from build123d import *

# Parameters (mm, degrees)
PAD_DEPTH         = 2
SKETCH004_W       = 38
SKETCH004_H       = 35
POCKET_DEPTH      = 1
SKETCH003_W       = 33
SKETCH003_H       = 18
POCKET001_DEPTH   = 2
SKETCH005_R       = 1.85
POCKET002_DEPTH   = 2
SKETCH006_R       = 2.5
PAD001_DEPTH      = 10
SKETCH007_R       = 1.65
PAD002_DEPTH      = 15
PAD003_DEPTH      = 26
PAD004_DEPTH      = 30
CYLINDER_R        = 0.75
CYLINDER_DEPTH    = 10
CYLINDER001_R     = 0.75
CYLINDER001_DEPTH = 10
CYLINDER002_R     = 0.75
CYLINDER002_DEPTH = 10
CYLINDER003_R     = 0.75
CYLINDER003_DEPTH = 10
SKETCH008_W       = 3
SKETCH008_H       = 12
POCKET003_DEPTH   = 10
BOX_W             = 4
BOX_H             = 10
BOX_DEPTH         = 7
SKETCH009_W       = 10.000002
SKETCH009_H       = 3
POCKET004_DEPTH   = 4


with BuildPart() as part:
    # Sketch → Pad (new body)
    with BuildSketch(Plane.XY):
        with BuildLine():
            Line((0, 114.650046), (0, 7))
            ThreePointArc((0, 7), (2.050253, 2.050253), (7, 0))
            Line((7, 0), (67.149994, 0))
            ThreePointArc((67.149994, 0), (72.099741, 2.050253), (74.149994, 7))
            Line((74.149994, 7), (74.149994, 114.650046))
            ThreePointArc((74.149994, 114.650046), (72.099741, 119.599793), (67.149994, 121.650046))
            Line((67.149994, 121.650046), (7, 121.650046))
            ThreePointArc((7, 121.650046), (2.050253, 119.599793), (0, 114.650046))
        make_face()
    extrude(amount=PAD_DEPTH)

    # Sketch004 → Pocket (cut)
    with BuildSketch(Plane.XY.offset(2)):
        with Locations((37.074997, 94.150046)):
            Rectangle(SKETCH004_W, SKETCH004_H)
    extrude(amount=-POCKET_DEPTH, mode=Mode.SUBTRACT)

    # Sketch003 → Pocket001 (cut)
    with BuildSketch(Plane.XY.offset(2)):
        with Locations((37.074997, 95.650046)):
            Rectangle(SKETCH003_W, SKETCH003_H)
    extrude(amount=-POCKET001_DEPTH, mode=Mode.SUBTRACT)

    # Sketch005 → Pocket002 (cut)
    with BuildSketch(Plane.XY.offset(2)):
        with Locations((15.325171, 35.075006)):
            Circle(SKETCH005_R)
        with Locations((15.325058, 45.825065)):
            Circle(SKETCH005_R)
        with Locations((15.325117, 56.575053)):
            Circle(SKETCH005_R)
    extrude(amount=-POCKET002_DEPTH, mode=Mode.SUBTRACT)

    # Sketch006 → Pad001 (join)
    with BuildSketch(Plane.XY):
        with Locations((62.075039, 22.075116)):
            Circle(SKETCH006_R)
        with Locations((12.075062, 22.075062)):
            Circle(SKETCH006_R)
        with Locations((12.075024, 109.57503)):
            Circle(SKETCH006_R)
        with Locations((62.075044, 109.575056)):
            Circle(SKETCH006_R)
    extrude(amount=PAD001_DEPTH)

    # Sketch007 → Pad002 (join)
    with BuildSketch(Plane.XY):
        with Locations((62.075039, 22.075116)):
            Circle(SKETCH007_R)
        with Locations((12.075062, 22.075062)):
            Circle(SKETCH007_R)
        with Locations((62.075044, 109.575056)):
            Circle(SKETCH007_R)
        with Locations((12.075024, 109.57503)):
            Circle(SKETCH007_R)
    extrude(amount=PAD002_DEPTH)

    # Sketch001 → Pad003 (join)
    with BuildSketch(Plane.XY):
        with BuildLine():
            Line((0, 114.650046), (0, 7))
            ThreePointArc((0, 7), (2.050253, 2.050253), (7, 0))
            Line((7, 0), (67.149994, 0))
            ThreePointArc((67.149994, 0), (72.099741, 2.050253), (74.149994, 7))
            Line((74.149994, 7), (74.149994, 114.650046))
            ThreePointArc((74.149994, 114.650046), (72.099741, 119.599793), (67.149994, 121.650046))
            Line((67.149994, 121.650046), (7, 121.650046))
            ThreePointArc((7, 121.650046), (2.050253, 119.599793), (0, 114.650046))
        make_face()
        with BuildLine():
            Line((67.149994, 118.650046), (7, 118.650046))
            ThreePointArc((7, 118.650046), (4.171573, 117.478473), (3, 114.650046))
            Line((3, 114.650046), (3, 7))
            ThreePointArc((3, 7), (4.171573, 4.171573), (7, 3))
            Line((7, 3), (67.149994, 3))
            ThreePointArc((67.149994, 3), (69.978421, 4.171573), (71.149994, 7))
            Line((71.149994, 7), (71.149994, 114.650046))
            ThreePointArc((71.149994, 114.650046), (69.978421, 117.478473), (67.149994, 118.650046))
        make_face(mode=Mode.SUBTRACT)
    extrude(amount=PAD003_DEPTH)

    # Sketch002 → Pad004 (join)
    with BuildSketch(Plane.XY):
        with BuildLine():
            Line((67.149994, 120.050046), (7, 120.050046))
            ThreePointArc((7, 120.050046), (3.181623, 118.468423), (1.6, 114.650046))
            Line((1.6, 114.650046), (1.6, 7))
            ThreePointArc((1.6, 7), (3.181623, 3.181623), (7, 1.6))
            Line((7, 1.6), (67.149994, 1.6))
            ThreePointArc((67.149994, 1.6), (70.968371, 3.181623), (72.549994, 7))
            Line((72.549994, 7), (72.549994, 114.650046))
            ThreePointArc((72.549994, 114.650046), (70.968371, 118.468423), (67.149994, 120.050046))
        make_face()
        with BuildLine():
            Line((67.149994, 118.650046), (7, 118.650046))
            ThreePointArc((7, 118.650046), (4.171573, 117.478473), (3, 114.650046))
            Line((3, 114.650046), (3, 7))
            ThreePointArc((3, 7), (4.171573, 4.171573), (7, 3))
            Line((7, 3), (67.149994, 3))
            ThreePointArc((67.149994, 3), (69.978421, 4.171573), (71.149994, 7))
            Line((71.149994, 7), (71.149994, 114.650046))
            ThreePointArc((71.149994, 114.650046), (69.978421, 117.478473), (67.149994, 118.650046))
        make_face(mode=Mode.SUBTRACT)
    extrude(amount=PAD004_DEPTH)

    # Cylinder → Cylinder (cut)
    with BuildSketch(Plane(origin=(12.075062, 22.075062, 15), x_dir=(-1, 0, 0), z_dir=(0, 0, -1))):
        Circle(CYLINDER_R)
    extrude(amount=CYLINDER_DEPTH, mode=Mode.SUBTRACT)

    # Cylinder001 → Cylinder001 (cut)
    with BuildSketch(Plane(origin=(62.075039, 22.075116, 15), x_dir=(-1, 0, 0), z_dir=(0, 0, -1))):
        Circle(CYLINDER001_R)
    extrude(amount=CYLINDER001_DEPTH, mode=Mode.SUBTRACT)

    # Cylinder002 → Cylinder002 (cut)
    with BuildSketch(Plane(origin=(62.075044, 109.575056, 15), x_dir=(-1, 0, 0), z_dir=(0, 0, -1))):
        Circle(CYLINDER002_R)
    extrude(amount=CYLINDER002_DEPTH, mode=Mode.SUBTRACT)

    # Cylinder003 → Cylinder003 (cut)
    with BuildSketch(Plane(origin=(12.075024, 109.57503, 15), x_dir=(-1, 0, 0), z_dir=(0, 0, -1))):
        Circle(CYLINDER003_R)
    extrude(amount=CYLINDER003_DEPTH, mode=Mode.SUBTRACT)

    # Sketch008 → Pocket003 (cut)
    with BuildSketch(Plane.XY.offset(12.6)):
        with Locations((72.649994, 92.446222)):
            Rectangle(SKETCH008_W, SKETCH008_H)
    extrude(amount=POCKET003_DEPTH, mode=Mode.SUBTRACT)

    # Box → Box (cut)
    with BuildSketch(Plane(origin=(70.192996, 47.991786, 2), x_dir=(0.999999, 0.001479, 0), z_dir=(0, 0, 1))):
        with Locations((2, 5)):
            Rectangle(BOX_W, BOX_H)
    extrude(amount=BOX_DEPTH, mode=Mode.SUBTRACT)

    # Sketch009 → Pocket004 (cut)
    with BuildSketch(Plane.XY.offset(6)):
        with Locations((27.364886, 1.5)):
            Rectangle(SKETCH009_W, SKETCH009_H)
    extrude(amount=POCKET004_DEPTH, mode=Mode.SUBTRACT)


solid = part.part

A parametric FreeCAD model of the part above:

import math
import FreeCAD as App
import Part
import Sketcher
from FreeCAD import Vector
Q = App.Units.Quantity

doc = App.newDocument("Part")
body = doc.addObject("PartDesign::Body", "Body")

sketch1 = body.newObject("Sketcher::SketchObject", "Sketch")
sketch1.AttachmentSupport = (doc.getObject("XY_Plane"), [""])
sketch1.MapMode = "FlatFace"
sketch1.addGeometry([
    Part.LineSegment(Vector(0, 115, 0), Vector(0, 7, 0)),
    Part.ArcOfCircle(Part.Circle(Vector(7, 7, 0), Vector(0, 0, 1), 7), math.radians(-180), math.radians(-90)),
    Part.LineSegment(Vector(7, 0, 0), Vector(67, 0, 0)),
    Part.ArcOfCircle(Part.Circle(Vector(67, 7, 0), Vector(0, 0, 1), 7), math.radians(-90), math.radians(0)),
    Part.LineSegment(Vector(74, 7, 0), Vector(74, 115, 0)),
    Part.ArcOfCircle(Part.Circle(Vector(67, 115, 0), Vector(0, 0, 1), 7), math.radians(0), math.radians(90)),
    Part.LineSegment(Vector(67, 122, 0), Vector(7, 122, 0)),
    Part.ArcOfCircle(Part.Circle(Vector(7, 115, 0), Vector(0, 0, 1), 7), math.radians(90), math.radians(180)),
], False)
sketch1.addConstraint([
    Sketcher.Constraint("Tangent", 0, 2, 1, 1),
    Sketcher.Constraint("Tangent", 1, 2, 2, 1),
    Sketcher.Constraint("Tangent", 2, 2, 3, 1),
    Sketcher.Constraint("Tangent", 3, 2, 4, 1),
    Sketcher.Constraint("Tangent", 4, 2, 5, 1),
    Sketcher.Constraint("Tangent", 5, 2, 6, 1),
    Sketcher.Constraint("Tangent", 6, 2, 7, 1),
    Sketcher.Constraint("Tangent", 7, 2, 0, 1),
    Sketcher.Constraint("Vertical", 0),
    Sketcher.Constraint("Horizontal", 2),
    Sketcher.Constraint("Vertical", 4),
    Sketcher.Constraint("Horizontal", 6),
    Sketcher.Constraint("Equal", 1, 3),
    Sketcher.Constraint("Equal", 3, 5),
    Sketcher.Constraint("Equal", 5, 7),
    Sketcher.Constraint("PointOnObject", 0, 2, -2),
    Sketcher.Constraint("PointOnObject", 1, 2, -1),
    Sketcher.Constraint("Radius", 1, Q("7.000002 mm")),
    Sketcher.Constraint("DistanceX", 2, 1, 2, 2, Q("60.149994 mm")),
    Sketcher.Constraint("DistanceY", 0, 2, 0, 1, Q("107.650046 mm")),
])
pad1 = body.newObject("PartDesign::Pad", "Pad")
pad1.Profile = sketch1
pad1.Length = 2

sketch2 = body.newObject("Sketcher::SketchObject", "Sketch001")
sketch2.AttachmentSupport = (doc.getObject("XY_Plane"), [""])
sketch2.MapMode = "FlatFace"
sketch2.AttachmentOffset = App.Placement(Vector(0, 0, 2), App.Rotation())
sketch2.addGeometry([
    Part.LineSegment(Vector(18, 112, 0), Vector(18, 77, 0)),
    Part.LineSegment(Vector(18, 77, 0), Vector(56, 77, 0)),
    Part.LineSegment(Vector(56, 77, 0), Vector(56, 112, 0)),
    Part.LineSegment(Vector(56, 112, 0), Vector(18, 112, 0)),
], False)
sketch2.addConstraint([
    Sketcher.Constraint("Coincident", 0, 2, 1, 1),
    Sketcher.Constraint("Coincident", 1, 2, 2, 1),
    Sketcher.Constraint("Coincident", 2, 2, 3, 1),
    Sketcher.Constraint("Coincident", 3, 2, 0, 1),
    Sketcher.Constraint("Vertical", 0),
    Sketcher.Constraint("Horizontal", 1),
    Sketcher.Constraint("Vertical", 2),
    Sketcher.Constraint("Horizontal", 3),
    Sketcher.Constraint("DistanceX", 1, 1, 1, 2, Q("38 mm")),
    Sketcher.Constraint("DistanceY", 0, 2, 0, 1, Q("35 mm")),
    Sketcher.Constraint("DistanceX", -1, 1, 0, 2, Q("18.074997 mm")),
    Sketcher.Constraint("DistanceY", -1, 1, 0, 2, Q("76.650046 mm")),
])
pocket1 = body.newObject("PartDesign::Pocket", "Pocket")
pocket1.Profile = sketch2
pocket1.Length = 1

sketch3 = body.newObject("Sketcher::SketchObject", "Sketch002")
sketch3.AttachmentSupport = (doc.getObject("XY_Plane"), [""])
sketch3.MapMode = "FlatFace"
sketch3.AttachmentOffset = App.Placement(Vector(0, 0, 2), App.Rotation())
sketch3.addGeometry([
    Part.LineSegment(Vector(21, 105, 0), Vector(21, 87, 0)),
    Part.LineSegment(Vector(21, 87, 0), Vector(54, 87, 0)),
    Part.LineSegment(Vector(54, 87, 0), Vector(54, 105, 0)),
    Part.LineSegment(Vector(54, 105, 0), Vector(21, 105, 0)),
], False)
sketch3.addConstraint([
    Sketcher.Constraint("Coincident", 0, 2, 1, 1),
    Sketcher.Constraint("Coincident", 1, 2, 2, 1),
    Sketcher.Constraint("Coincident", 2, 2, 3, 1),
    Sketcher.Constraint("Coincident", 3, 2, 0, 1),
    Sketcher.Constraint("Vertical", 0),
    Sketcher.Constraint("Horizontal", 1),
    Sketcher.Constraint("Vertical", 2),
    Sketcher.Constraint("Horizontal", 3),
    Sketcher.Constraint("DistanceX", 1, 1, 1, 2, Q("33 mm")),
    Sketcher.Constraint("DistanceY", 0, 2, 0, 1, Q("18 mm")),
    Sketcher.Constraint("DistanceX", -1, 1, 0, 2, Q("20.574997 mm")),
    Sketcher.Constraint("DistanceY", -1, 1, 0, 2, Q("86.650046 mm")),
])
pocket2 = body.newObject("PartDesign::Pocket", "Pocket001")
pocket2.Profile = sketch3
pocket2.Length = 2

sketch4 = body.newObject("Sketcher::SketchObject", "Sketch003")
sketch4.AttachmentSupport = (doc.getObject("XY_Plane"), [""])
sketch4.MapMode = "FlatFace"
sketch4.AttachmentOffset = App.Placement(Vector(0, 0, 2), App.Rotation())
sketch4.addGeometry([
    Part.Circle(Vector(15.3, 35.1, 0), Vector(0, 0, 1), 1.9),
    Part.Circle(Vector(15.3, 45.8, 0), Vector(0, 0, 1), 1.9),
    Part.Circle(Vector(15.3, 56.6, 0), Vector(0, 0, 1), 1.9),
], False)
sketch4.addConstraint([
    Sketcher.Constraint("Equal", 0, 1),
    Sketcher.Constraint("Equal", 1, 2),
    Sketcher.Constraint("Diameter", 0, Q("3.7 mm")),
    Sketcher.Constraint("DistanceX", -1, 1, 0, 3, Q("15.325171 mm")),
    Sketcher.Constraint("DistanceY", 0, 3, 1, 3, Q("10.750059 mm")),
    Sketcher.Constraint("DistanceY", -1, 1, 0, 3, Q("35.075006 mm")),
    Sketcher.Constraint("DistanceX", -1, 1, 1, 3, Q("15.325058 mm")),
    Sketcher.Constraint("DistanceX", -1, 1, 2, 3, Q("15.325117 mm")),
    Sketcher.Constraint("DistanceY", -1, 1, 2, 3, Q("56.575053 mm")),
])
pocket3 = body.newObject("PartDesign::Pocket", "Pocket002")
pocket3.Profile = sketch4
pocket3.Length = 2

sketch5 = body.newObject("Sketcher::SketchObject", "Sketch004")
sketch5.AttachmentSupport = (doc.getObject("XY_Plane"), [""])
sketch5.MapMode = "FlatFace"
sketch5.addGeometry([
    Part.Circle(Vector(62.1, 22.1, 0), Vector(0, 0, 1), 2.5),
    Part.Circle(Vector(12.1, 22.1, 0), Vector(0, 0, 1), 2.5),
    Part.Circle(Vector(12.1, 109.6, 0), Vector(0, 0, 1), 2.5),
    Part.Circle(Vector(62.1, 109.6, 0), Vector(0, 0, 1), 2.5),
], False)
sketch5.addConstraint([
    Sketcher.Constraint("Equal", 0, 1),
    Sketcher.Constraint("Equal", 1, 2),
    Sketcher.Constraint("Equal", 2, 3),
    Sketcher.Constraint("Diameter", 0, Q("5 mm")),
    Sketcher.Constraint("DistanceX", -1, 1, 0, 3, Q("62.075039 mm")),
    Sketcher.Constraint("DistanceY", -1, 1, 1, 3, Q("22.075062 mm")),
    Sketcher.Constraint("DistanceY", -1, 1, 2, 3, Q("109.57503 mm")),
    Sketcher.Constraint("DistanceX", 2, 3, 3, 3, Q("50.00002 mm")),
    Sketcher.Constraint("DistanceY", 0, 3, 3, 3, Q("87.49994 mm")),
    Sketcher.Constraint("DistanceX", 1, 3, 3, 3, Q("49.999982 mm")),
    Sketcher.Constraint("DistanceY", -1, 1, 0, 3, Q("22.075116 mm")),
    Sketcher.Constraint("DistanceX", -1, 1, 1, 3, Q("12.075062 mm")),
])
pad2 = body.newObject("PartDesign::Pad", "Pad001")
pad2.Profile = sketch5
pad2.Length = 10

sketch6 = body.newObject("Sketcher::SketchObject", "Sketch005")
sketch6.AttachmentSupport = (doc.getObject("XY_Plane"), [""])
sketch6.MapMode = "FlatFace"
sketch6.addGeometry([
    Part.Circle(Vector(62.1, 22.1, 0), Vector(0, 0, 1), 1.6),
    Part.Circle(Vector(12.1, 22.1, 0), Vector(0, 0, 1), 1.6),
    Part.Circle(Vector(62.1, 109.6, 0), Vector(0, 0, 1), 1.6),
    Part.Circle(Vector(12.1, 109.6, 0), Vector(0, 0, 1), 1.6),
], False)
sketch6.addConstraint([
    Sketcher.Constraint("Equal", 0, 1),
    Sketcher.Constraint("Equal", 1, 2),
    Sketcher.Constraint("Equal", 2, 3),
    Sketcher.Constraint("Diameter", 0, Q("3.3 mm")),
    Sketcher.Constraint("DistanceX", -1, 1, 0, 3, Q("62.075039 mm")),
    Sketcher.Constraint("DistanceY", -1, 1, 1, 3, Q("22.075062 mm")),
    Sketcher.Constraint("DistanceY", -1, 1, 3, 3, Q("109.57503 mm")),
    Sketcher.Constraint("DistanceY", 0, 3, 2, 3, Q("87.49994 mm")),
    Sketcher.Constraint("DistanceX", 1, 3, 2, 3, Q("49.999982 mm")),
    Sketcher.Constraint("DistanceX", 3, 3, 2, 3, Q("50.00002 mm")),
    Sketcher.Constraint("DistanceY", -1, 1, 0, 3, Q("22.075116 mm")),
    Sketcher.Constraint("DistanceX", -1, 1, 1, 3, Q("12.075062 mm")),
])
pad3 = body.newObject("PartDesign::Pad", "Pad002")
pad3.Profile = sketch6
pad3.Length = 15

sketch7 = body.newObject("Sketcher::SketchObject", "Sketch006")
sketch7.AttachmentSupport = (doc.getObject("XY_Plane"), [""])
sketch7.MapMode = "FlatFace"
sketch7.addGeometry([
    Part.LineSegment(Vector(0, 114.7, 0), Vector(0, 7, 0)),
    Part.ArcOfCircle(Part.Circle(Vector(7, 7, 0), Vector(0, 0, 1), 7), math.radians(-180), math.radians(-90)),
    Part.LineSegment(Vector(7, 0, 0), Vector(67.1, 0, 0)),
    Part.ArcOfCircle(Part.Circle(Vector(67.1, 7, 0), Vector(0, 0, 1), 7), math.radians(-90), math.radians(0)),
    Part.LineSegment(Vector(74.1, 7, 0), Vector(74.1, 114.7, 0)),
    Part.ArcOfCircle(Part.Circle(Vector(67.1, 114.7, 0), Vector(0, 0, 1), 7), math.radians(0), math.radians(90)),
    Part.LineSegment(Vector(67.1, 121.7, 0), Vector(7, 121.7, 0)),
    Part.ArcOfCircle(Part.Circle(Vector(7, 114.7, 0), Vector(0, 0, 1), 7), math.radians(90), math.radians(180)),
    Part.LineSegment(Vector(7, 118.7, 0), Vector(67.1, 118.7, 0)),
    Part.ArcOfCircle(Part.Circle(Vector(67.1, 114.7, 0), Vector(0, 0, 1), 4), math.radians(0), math.radians(90)),
    Part.LineSegment(Vector(71.1, 114.7, 0), Vector(71.1, 7, 0)),
    Part.ArcOfCircle(Part.Circle(Vector(67.1, 7, 0), Vector(0, 0, 1), 4), math.radians(-90), math.radians(0)),
    Part.LineSegment(Vector(67.1, 3, 0), Vector(7, 3, 0)),
    Part.ArcOfCircle(Part.Circle(Vector(7, 7, 0), Vector(0, 0, 1), 4), math.radians(-180), math.radians(-90)),
    Part.LineSegment(Vector(3, 7, 0), Vector(3, 114.7, 0)),
    Part.ArcOfCircle(Part.Circle(Vector(7, 114.7, 0), Vector(0, 0, 1), 4), math.radians(90), math.radians(180)),
], False)
sketch7.addConstraint([
    Sketcher.Constraint("Tangent", 0, 2, 1, 1),
    Sketcher.Constraint("Tangent", 1, 2, 2, 1),
    Sketcher.Constraint("Tangent", 2, 2, 3, 1),
    Sketcher.Constraint("Tangent", 3, 2, 4, 1),
    Sketcher.Constraint("Tangent", 4, 2, 5, 1),
    Sketcher.Constraint("Tangent", 5, 2, 6, 1),
    Sketcher.Constraint("Tangent", 6, 2, 7, 1),
    Sketcher.Constraint("Tangent", 7, 2, 0, 1),
    Sketcher.Constraint("Tangent", 8, 2, 9, 2),
    Sketcher.Constraint("Tangent", 9, 1, 10, 1),
    Sketcher.Constraint("Tangent", 10, 2, 11, 2),
    Sketcher.Constraint("Tangent", 11, 1, 12, 1),
    Sketcher.Constraint("Tangent", 12, 2, 13, 2),
    Sketcher.Constraint("Tangent", 13, 1, 14, 1),
    Sketcher.Constraint("Tangent", 14, 2, 15, 2),
    Sketcher.Constraint("Tangent", 15, 1, 8, 1),
    Sketcher.Constraint("Vertical", 0),
    Sketcher.Constraint("Horizontal", 2),
    Sketcher.Constraint("Vertical", 4),
    Sketcher.Constraint("Horizontal", 6),
    Sketcher.Constraint("Horizontal", 8),
    Sketcher.Constraint("Vertical", 10),
    Sketcher.Constraint("Horizontal", 12),
    Sketcher.Constraint("Vertical", 14),
    Sketcher.Constraint("Coincident", 9, 3, 5, 3),
    Sketcher.Constraint("Coincident", 11, 3, 3, 3),
    Sketcher.Constraint("Coincident", 13, 3, 1, 3),
    Sketcher.Constraint("Equal", 1, 3),
    Sketcher.Constraint("Equal", 3, 5),
    Sketcher.Constraint("Equal", 5, 7),
    Sketcher.Constraint("Equal", 13, 15),
    Sketcher.Constraint("PointOnObject", 0, 2, -2),
    Sketcher.Constraint("PointOnObject", 1, 2, -1),
    Sketcher.Constraint("Radius", 1, Q("7.000002 mm")),
    Sketcher.Constraint("Radius", 9, Q("4 mm")),
    Sketcher.Constraint("DistanceX", 2, 1, 2, 2, Q("60.149994 mm")),
    Sketcher.Constraint("DistanceY", 0, 2, 0, 1, Q("107.650046 mm")),
])
pad4 = body.newObject("PartDesign::Pad", "Pad003")
pad4.Profile = sketch7
pad4.Length = 26

sketch8 = body.newObject("Sketcher::SketchObject", "Sketch007")
sketch8.AttachmentSupport = (doc.getObject("XY_Plane"), [""])
sketch8.MapMode = "FlatFace"
sketch8.addGeometry([
    Part.LineSegment(Vector(67.1, 120.1, 0), Vector(7, 120.1, 0)),
    Part.ArcOfCircle(Part.Circle(Vector(7, 114.7, 0), Vector(0, 0, 1), 5.4), math.radians(90), math.radians(180)),
    Part.LineSegment(Vector(1.6, 114.7, 0), Vector(1.6, 7, 0)),
    Part.ArcOfCircle(Part.Circle(Vector(7, 7, 0), Vector(0, 0, 1), 5.4), math.radians(180), math.radians(270)),
    Part.LineSegment(Vector(7, 1.6, 0), Vector(67.1, 1.6, 0)),
    Part.ArcOfCircle(Part.Circle(Vector(67.1, 7, 0), Vector(0, 0, 1), 5.4), math.radians(-90), math.radians(0)),
    Part.LineSegment(Vector(72.5, 7, 0), Vector(72.5, 114.7, 0)),
    Part.ArcOfCircle(Part.Circle(Vector(67.1, 114.7, 0), Vector(0, 0, 1), 5.4), math.radians(0), math.radians(90)),
    Part.LineSegment(Vector(7, 118.7, 0), Vector(67.1, 118.7, 0)),
    Part.ArcOfCircle(Part.Circle(Vector(67.1, 114.7, 0), Vector(0, 0, 1), 4), math.radians(0), math.radians(90)),
    Part.LineSegment(Vector(71.1, 114.7, 0), Vector(71.1, 7, 0)),
    Part.ArcOfCircle(Part.Circle(Vector(67.1, 7, 0), Vector(0, 0, 1), 4), math.radians(-90), math.radians(0)),
    Part.LineSegment(Vector(67.1, 3, 0), Vector(7, 3, 0)),
    Part.ArcOfCircle(Part.Circle(Vector(7, 7, 0), Vector(0, 0, 1), 4), math.radians(-180), math.radians(-90)),
    Part.LineSegment(Vector(3, 7, 0), Vector(3, 114.7, 0)),
    Part.ArcOfCircle(Part.Circle(Vector(7, 114.7, 0), Vector(0, 0, 1), 4), math.radians(90), math.radians(180)),
], False)
sketch8.addConstraint([
    Sketcher.Constraint("Tangent", 0, 2, 1, 1),
    Sketcher.Constraint("Tangent", 1, 2, 2, 1),
    Sketcher.Constraint("Tangent", 2, 2, 3, 1),
    Sketcher.Constraint("Tangent", 3, 2, 4, 1),
    Sketcher.Constraint("Tangent", 4, 2, 5, 1),
    Sketcher.Constraint("Tangent", 5, 2, 6, 1),
    Sketcher.Constraint("Tangent", 6, 2, 7, 1),
    Sketcher.Constraint("Tangent", 7, 2, 0, 1),
    Sketcher.Constraint("Tangent", 8, 2, 9, 2),
    Sketcher.Constraint("Tangent", 9, 1, 10, 1),
    Sketcher.Constraint("Tangent", 10, 2, 11, 2),
    Sketcher.Constraint("Tangent", 11, 1, 12, 1),
    Sketcher.Constraint("Tangent", 12, 2, 13, 2),
    Sketcher.Constraint("Tangent", 13, 1, 14, 1),
    Sketcher.Constraint("Tangent", 14, 2, 15, 2),
    Sketcher.Constraint("Tangent", 15, 1, 8, 1),
    Sketcher.Constraint("Horizontal", 0),
    Sketcher.Constraint("Vertical", 2),
    Sketcher.Constraint("Horizontal", 4),
    Sketcher.Constraint("Vertical", 6),
    Sketcher.Constraint("Horizontal", 8),
    Sketcher.Constraint("Vertical", 10),
    Sketcher.Constraint("Horizontal", 12),
    Sketcher.Constraint("Vertical", 14),
    Sketcher.Constraint("Coincident", 9, 3, 7, 3),
    Sketcher.Constraint("Coincident", 11, 3, 5, 3),
    Sketcher.Constraint("Coincident", 13, 3, 3, 3),
    Sketcher.Constraint("Equal", 1, 3),
    Sketcher.Constraint("Equal", 3, 5),
    Sketcher.Constraint("Equal", 5, 7),
    Sketcher.Constraint("Equal", 13, 15),
    Sketcher.Constraint("Radius", 9, Q("4 mm")),
    Sketcher.Constraint("Radius", 1, Q("5.399999 mm")),
    Sketcher.Constraint("DistanceX", -1, 1, 1, 3, Q("6.999999 mm")),
    Sketcher.Constraint("DistanceY", -1, 1, 3, 3, Q("6.999999 mm")),
    Sketcher.Constraint("DistanceX", 0, 2, 0, 1, Q("60.149994 mm")),
    Sketcher.Constraint("DistanceY", 2, 2, 2, 1, Q("107.650046 mm")),
])
pad5 = body.newObject("PartDesign::Pad", "Pad004")
pad5.Profile = sketch8
pad5.Length = 30

sketch9 = body.newObject("Sketcher::SketchObject", "Sketch008")
sketch9.AttachmentSupport = (doc.getObject("XY_Plane"), [""])
sketch9.MapMode = "FlatFace"
sketch9.AttachmentOffset = App.Placement(Vector(0, 0, 15), App.Rotation())
sketch9.addGeometry(Part.Circle(Vector(12.1, 22.1, 0), Vector(0, 0, 1), 0.8), False)
sketch9.addConstraint([
    Sketcher.Constraint("Diameter", 0, Q("1.5 mm")),
    Sketcher.Constraint("DistanceY", -1, 1, 0, 3, Q("22.075062 mm")),
    Sketcher.Constraint("DistanceX", -1, 1, 0, 3, Q("12.075062 mm")),
])
pocket4 = body.newObject("PartDesign::Pocket", "Pocket003")
pocket4.Profile = sketch9
pocket4.Length = 10

sketch10 = body.newObject("Sketcher::SketchObject", "Sketch009")
sketch10.AttachmentSupport = (doc.getObject("XY_Plane"), [""])
sketch10.MapMode = "FlatFace"
sketch10.AttachmentOffset = App.Placement(Vector(0, 0, 15), App.Rotation())
sketch10.addGeometry(Part.Circle(Vector(62.1, 22.1, 0), Vector(0, 0, 1), 0.8), False)
sketch10.addConstraint([
    Sketcher.Constraint("Diameter", 0, Q("1.5 mm")),
    Sketcher.Constraint("DistanceX", -1, 1, 0, 3, Q("62.075039 mm")),
    Sketcher.Constraint("DistanceY", -1, 1, 0, 3, Q("22.075116 mm")),
])
pocket5 = body.newObject("PartDesign::Pocket", "Pocket004")
pocket5.Profile = sketch10
pocket5.Length = 10

sketch11 = body.newObject("Sketcher::SketchObject", "Sketch010")
sketch11.AttachmentSupport = (doc.getObject("XY_Plane"), [""])
sketch11.MapMode = "FlatFace"
sketch11.AttachmentOffset = App.Placement(Vector(0, 0, 15), App.Rotation())
sketch11.addGeometry(Part.Circle(Vector(62.1, 109.6, 0), Vector(0, 0, 1), 0.8), False)
sketch11.addConstraint([
    Sketcher.Constraint("Diameter", 0, Q("1.5 mm")),
    Sketcher.Constraint("DistanceX", -1, 1, 0, 3, Q("62.075044 mm")),
    Sketcher.Constraint("DistanceY", -1, 1, 0, 3, Q("109.575056 mm")),
])
pocket6 = body.newObject("PartDesign::Pocket", "Pocket005")
pocket6.Profile = sketch11
pocket6.Length = 10

sketch12 = body.newObject("Sketcher::SketchObject", "Sketch011")
sketch12.AttachmentSupport = (doc.getObject("XY_Plane"), [""])
sketch12.MapMode = "FlatFace"
sketch12.AttachmentOffset = App.Placement(Vector(0, 0, 15), App.Rotation())
sketch12.addGeometry(Part.Circle(Vector(12.1, 109.6, 0), Vector(0, 0, 1), 0.8), False)
sketch12.addConstraint([
    Sketcher.Constraint("Diameter", 0, Q("1.5 mm")),
    Sketcher.Constraint("DistanceY", -1, 1, 0, 3, Q("109.57503 mm")),
    Sketcher.Constraint("DistanceX", -1, 1, 0, 3, Q("12.075024 mm")),
])
pocket7 = body.newObject("PartDesign::Pocket", "Pocket006")
pocket7.Profile = sketch12
pocket7.Length = 10

sketch13 = body.newObject("Sketcher::SketchObject", "Sketch012")
sketch13.AttachmentSupport = (doc.getObject("XY_Plane"), [""])
sketch13.MapMode = "FlatFace"
sketch13.AttachmentOffset = App.Placement(Vector(0, 0, 12.6), App.Rotation())
sketch13.addGeometry([
    Part.LineSegment(Vector(71.1, 98.4, 0), Vector(71.1, 86.4, 0)),
    Part.LineSegment(Vector(71.1, 86.4, 0), Vector(74.1, 86.4, 0)),
    Part.LineSegment(Vector(74.1, 86.4, 0), Vector(74.1, 98.4, 0)),
    Part.LineSegment(Vector(74.1, 98.4, 0), Vector(71.1, 98.4, 0)),
], False)
sketch13.addConstraint([
    Sketcher.Constraint("Coincident", 0, 2, 1, 1),
    Sketcher.Constraint("Coincident", 1, 2, 2, 1),
    Sketcher.Constraint("Coincident", 2, 2, 3, 1),
    Sketcher.Constraint("Coincident", 3, 2, 0, 1),
    Sketcher.Constraint("Vertical", 0),
    Sketcher.Constraint("Horizontal", 1),
    Sketcher.Constraint("Vertical", 2),
    Sketcher.Constraint("Horizontal", 3),
    Sketcher.Constraint("DistanceX", 1, 1, 1, 2, Q("3 mm")),
    Sketcher.Constraint("DistanceY", 0, 2, 0, 1, Q("12 mm")),
    Sketcher.Constraint("DistanceX", -1, 1, 0, 2, Q("71.149994 mm")),
    Sketcher.Constraint("DistanceY", -1, 1, 0, 2, Q("86.446222 mm")),
])
pocket8 = body.newObject("PartDesign::Pocket", "Pocket007")
pocket8.Profile = sketch13
pocket8.Length = 10
pocket8.Reversed = True

sketch14 = body.newObject("Sketcher::SketchObject", "Sketch013")
sketch14.AttachmentSupport = (doc.getObject("XY_Plane"), [""])
sketch14.MapMode = "FlatFace"
sketch14.AttachmentOffset = App.Placement(Vector(0, 0, 2), App.Rotation())
sketch14.addGeometry([
    Part.LineSegment(Vector(70.2, 58, 0), Vector(70.2, 48, 0)),
    Part.LineSegment(Vector(70.2, 48, 0), Vector(74.2, 48, 0)),
    Part.LineSegment(Vector(74.2, 48, 0), Vector(74.2, 58, 0)),
    Part.LineSegment(Vector(74.2, 58, 0), Vector(70.2, 58, 0)),
], False)
sketch14.addConstraint([
    Sketcher.Constraint("Coincident", 0, 2, 1, 1),
    Sketcher.Constraint("Coincident", 1, 2, 2, 1),
    Sketcher.Constraint("Coincident", 2, 2, 3, 1),
    Sketcher.Constraint("Coincident", 3, 2, 0, 1),
    Sketcher.Constraint("Perpendicular", 0, 1),
    Sketcher.Constraint("Perpendicular", 1, 2),
    Sketcher.Constraint("Perpendicular", 2, 3),
    Sketcher.Constraint("Distance", 0, Q("10 mm")),
    Sketcher.Constraint("Distance", 1, Q("4 mm")),
    Sketcher.Constraint("DistanceY", -1, 1, 1, 2, Q("47.997702 mm")),
    Sketcher.Constraint("DistanceX", -1, 1, 2, 2, Q("74.178202 mm")),
    Sketcher.Constraint("DistanceX", -1, 1, 1, 2, Q("74.192992 mm")),
])
pocket9 = body.newObject("PartDesign::Pocket", "Pocket008")
pocket9.Profile = sketch14
pocket9.Length = 7
pocket9.Reversed = True

sketch15 = body.newObject("Sketcher::SketchObject", "Sketch014")
sketch15.AttachmentSupport = (doc.getObject("XY_Plane"), [""])
sketch15.MapMode = "FlatFace"
sketch15.AttachmentOffset = App.Placement(Vector(0, 0, 6), App.Rotation())
sketch15.addGeometry([
    Part.LineSegment(Vector(22.4, 3, 0), Vector(22.4, 0, 0)),
    Part.LineSegment(Vector(22.4, 0, 0), Vector(32.4, 0, 0)),
    Part.LineSegment(Vector(32.4, 0, 0), Vector(32.4, 3, 0)),
    Part.LineSegment(Vector(32.4, 3, 0), Vector(22.4, 3, 0)),
], False)
sketch15.addConstraint([
    Sketcher.Constraint("Coincident", 0, 2, 1, 1),
    Sketcher.Constraint("Coincident", 1, 2, 2, 1),
    Sketcher.Constraint("Coincident", 2, 2, 3, 1),
    Sketcher.Constraint("Coincident", 3, 2, 0, 1),
    Sketcher.Constraint("Vertical", 0),
    Sketcher.Constraint("Horizontal", 1),
    Sketcher.Constraint("Vertical", 2),
    Sketcher.Constraint("Horizontal", 3),
    Sketcher.Constraint("PointOnObject", 0, 2, -1),
    Sketcher.Constraint("DistanceY", 0, 2, 0, 1, Q("3 mm")),
    Sketcher.Constraint("DistanceX", 1, 1, 1, 2, Q("10.000002 mm")),
    Sketcher.Constraint("DistanceX", -1, 1, 0, 2, Q("22.364885 mm")),
])
pocket10 = body.newObject("PartDesign::Pocket", "Pocket009")
pocket10.Profile = sketch15
pocket10.Length = 4
pocket10.Reversed = True

doc.recompute()
